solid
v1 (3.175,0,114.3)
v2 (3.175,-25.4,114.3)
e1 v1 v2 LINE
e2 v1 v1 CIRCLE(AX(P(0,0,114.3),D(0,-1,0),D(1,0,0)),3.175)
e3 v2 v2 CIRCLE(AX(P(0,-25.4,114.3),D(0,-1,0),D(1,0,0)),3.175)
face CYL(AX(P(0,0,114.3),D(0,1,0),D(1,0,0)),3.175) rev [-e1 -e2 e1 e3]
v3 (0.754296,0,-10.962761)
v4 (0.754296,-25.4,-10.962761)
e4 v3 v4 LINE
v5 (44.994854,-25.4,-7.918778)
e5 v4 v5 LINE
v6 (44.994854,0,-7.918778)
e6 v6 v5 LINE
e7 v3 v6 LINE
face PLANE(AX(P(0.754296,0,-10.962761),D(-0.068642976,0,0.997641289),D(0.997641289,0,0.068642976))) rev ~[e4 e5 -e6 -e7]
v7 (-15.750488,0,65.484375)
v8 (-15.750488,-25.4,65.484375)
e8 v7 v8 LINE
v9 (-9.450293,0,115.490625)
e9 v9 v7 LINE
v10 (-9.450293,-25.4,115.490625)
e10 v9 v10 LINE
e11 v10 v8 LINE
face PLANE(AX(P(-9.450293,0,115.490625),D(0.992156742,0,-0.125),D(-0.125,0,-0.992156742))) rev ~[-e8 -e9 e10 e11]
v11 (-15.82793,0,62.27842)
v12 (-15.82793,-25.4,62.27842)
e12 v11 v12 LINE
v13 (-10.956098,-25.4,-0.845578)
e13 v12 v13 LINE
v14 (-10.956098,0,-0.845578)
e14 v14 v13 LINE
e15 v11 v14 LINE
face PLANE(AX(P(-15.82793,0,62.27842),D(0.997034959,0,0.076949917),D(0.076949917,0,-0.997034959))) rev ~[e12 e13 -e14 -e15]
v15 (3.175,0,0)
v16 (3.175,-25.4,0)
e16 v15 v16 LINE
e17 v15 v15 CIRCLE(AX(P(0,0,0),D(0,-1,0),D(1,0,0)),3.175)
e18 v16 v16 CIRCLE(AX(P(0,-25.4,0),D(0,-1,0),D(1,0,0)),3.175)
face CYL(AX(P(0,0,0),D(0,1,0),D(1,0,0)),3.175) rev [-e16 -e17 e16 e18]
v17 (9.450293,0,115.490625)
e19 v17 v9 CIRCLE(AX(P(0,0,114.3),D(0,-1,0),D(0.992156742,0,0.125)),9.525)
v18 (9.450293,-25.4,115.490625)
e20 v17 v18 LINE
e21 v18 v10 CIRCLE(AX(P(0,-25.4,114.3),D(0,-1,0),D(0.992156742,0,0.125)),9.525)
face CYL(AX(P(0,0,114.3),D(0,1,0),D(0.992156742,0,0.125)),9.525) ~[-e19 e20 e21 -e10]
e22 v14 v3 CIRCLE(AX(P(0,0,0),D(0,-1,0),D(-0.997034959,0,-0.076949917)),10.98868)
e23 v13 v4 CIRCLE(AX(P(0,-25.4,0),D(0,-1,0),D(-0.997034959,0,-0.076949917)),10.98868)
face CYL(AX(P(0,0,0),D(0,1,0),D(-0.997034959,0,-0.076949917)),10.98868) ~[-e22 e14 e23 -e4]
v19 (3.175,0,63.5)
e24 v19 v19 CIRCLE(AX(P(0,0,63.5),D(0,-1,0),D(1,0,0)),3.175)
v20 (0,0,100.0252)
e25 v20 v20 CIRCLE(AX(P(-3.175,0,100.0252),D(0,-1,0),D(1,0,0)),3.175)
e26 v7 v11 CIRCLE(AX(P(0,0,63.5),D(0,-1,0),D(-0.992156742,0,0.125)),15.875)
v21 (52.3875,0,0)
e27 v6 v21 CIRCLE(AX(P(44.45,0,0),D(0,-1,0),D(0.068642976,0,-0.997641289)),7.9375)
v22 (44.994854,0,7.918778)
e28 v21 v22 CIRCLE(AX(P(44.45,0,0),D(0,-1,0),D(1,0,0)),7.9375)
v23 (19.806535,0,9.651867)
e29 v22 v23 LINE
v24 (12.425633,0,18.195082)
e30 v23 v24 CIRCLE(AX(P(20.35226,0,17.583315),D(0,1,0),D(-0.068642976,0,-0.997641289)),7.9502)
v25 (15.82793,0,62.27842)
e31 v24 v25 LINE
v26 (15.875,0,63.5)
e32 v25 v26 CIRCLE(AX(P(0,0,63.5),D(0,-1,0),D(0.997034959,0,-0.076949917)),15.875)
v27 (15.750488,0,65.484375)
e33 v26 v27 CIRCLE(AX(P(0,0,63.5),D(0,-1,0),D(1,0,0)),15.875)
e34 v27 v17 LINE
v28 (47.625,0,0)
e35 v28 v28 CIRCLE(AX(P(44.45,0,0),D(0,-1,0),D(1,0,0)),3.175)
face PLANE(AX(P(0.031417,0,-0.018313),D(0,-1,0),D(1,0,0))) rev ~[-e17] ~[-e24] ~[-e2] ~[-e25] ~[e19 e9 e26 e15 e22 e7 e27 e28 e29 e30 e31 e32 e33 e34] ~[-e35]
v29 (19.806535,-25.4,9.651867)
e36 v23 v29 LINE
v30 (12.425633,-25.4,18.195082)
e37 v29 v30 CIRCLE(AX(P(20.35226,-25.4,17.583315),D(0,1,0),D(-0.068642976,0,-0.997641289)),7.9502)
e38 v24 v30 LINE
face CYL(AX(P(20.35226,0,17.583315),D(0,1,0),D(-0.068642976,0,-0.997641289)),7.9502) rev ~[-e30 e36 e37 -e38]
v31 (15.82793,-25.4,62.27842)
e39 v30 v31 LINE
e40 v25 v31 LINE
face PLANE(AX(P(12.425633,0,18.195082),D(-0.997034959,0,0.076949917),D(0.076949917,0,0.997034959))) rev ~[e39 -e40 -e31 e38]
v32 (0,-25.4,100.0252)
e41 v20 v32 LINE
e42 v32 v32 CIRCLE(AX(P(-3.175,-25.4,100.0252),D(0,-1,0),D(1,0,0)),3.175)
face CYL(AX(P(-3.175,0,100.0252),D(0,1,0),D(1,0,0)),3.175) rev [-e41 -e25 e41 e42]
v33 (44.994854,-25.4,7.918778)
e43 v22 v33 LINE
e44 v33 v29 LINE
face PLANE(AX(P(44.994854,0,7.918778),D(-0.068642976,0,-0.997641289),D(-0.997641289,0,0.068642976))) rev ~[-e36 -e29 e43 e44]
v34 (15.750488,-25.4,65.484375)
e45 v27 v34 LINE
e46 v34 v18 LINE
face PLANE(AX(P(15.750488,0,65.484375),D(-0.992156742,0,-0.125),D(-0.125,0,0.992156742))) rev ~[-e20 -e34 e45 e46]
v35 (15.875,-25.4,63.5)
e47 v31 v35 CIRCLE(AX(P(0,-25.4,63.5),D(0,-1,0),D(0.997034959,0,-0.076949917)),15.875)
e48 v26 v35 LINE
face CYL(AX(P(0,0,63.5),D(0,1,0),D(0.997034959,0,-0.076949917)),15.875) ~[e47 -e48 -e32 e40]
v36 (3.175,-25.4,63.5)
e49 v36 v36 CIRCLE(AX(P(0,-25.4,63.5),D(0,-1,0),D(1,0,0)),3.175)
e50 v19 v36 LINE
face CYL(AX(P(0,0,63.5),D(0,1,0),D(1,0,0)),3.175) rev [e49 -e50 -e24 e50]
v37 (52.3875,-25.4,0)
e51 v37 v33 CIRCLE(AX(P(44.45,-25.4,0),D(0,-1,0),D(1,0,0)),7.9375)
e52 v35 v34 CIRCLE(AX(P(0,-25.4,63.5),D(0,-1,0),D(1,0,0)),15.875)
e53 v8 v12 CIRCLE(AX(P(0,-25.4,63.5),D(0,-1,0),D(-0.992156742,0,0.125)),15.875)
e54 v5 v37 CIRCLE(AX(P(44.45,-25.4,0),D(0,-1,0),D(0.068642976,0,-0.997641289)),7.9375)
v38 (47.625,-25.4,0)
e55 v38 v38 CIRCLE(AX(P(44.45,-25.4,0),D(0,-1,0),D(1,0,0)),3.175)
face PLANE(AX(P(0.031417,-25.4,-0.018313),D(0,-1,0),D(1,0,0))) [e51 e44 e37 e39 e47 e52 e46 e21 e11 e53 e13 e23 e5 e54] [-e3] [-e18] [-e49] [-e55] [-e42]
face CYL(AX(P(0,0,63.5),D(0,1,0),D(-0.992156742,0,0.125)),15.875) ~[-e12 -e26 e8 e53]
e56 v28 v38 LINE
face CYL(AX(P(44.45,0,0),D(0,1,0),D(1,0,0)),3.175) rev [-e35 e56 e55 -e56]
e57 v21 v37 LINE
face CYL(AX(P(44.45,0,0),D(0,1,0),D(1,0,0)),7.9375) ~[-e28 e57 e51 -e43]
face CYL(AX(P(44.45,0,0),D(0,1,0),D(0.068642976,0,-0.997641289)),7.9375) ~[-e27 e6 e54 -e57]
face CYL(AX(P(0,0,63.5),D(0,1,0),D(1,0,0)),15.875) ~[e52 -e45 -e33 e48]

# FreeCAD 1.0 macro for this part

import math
import FreeCAD as App
import Part
import Sketcher

V = App.Vector
Q = App.Units.Quantity

doc = App.newDocument("Part")
body = doc.addObject("PartDesign::Body", "Body")

# Sketch on XZ plane
sketch1 = body.newObject("Sketcher::SketchObject", "Sketch")
sketch1.AttachmentSupport = (doc.getObject("XZ_Plane"), [""])
sketch1.MapMode = "FlatFace"
sketch1.addGeometry([
    Part.LineSegment(V(45, 7.9, 0), V(19.8, 9.7, 0)),  # 0
    Part.ArcOfCircle(Part.Circle(V(20.4, 17.6, 0), V(0, 0, 1), 8), math.radians(176), math.radians(266)),  # 1
    Part.LineSegment(V(12.4, 18.2, 0), V(15.8, 62.3, 0)),  # 2
    Part.ArcOfCircle(Part.Circle(V(0, 63.5, 0), V(0, 0, 1), 15.9), math.radians(-4.41), math.radians(0)),  # 3
    Part.ArcOfCircle(Part.Circle(V(0, 63.5, 0), V(0, 0, 1), 15.9), math.radians(0), math.radians(7.18)),  # 4
    Part.LineSegment(V(15.8, 65.5, 0), V(9.5, 115.5, 0)),  # 5
    Part.ArcOfCircle(Part.Circle(V(0, 114.3, 0), V(0, 0, 1), 9.5), math.radians(7), math.radians(173)),  # 6
    Part.LineSegment(V(-9.5, 115.5, 0), V(-15.8, 65.5, 0)),  # 7
    Part.ArcOfCircle(Part.Circle(V(0, 63.5, 0), V(0, 0, 1), 15.9), math.radians(172.82), math.radians(184.41)),  # 8
    Part.LineSegment(V(-15.8, 62.3, 0), V(-11, -0.8, 0)),  # 9
    Part.ArcOfCircle(Part.Circle(V(0, 0, 0), V(0, 0, 1), 11), math.radians(-176), math.radians(-86)),  # 10
    Part.LineSegment(V(0.8, -11, 0), V(45, -7.9, 0)),  # 11
    Part.ArcOfCircle(Part.Circle(V(44.5, 0, 0), V(0, 0, 1), 7.9), math.radians(-86), math.radians(0)),  # 12
    Part.ArcOfCircle(Part.Circle(V(44.5, 0, 0), V(0, 0, 1), 7.9), math.radians(0), math.radians(86)),  # 13
    Part.Circle(V(0, 0, 0), V(0, 0, 1), 3.2),  # 14
    Part.Circle(V(44.5, 0, 0), V(0, 0, 1), 3.2),  # 15
    Part.Circle(V(0, 63.5, 0), V(0, 0, 1), 3.2),  # 16
    Part.Circle(V(-3.2, 100, 0), V(0, 0, 1), 3.2),  # 17
    Part.Circle(V(0, 114.3, 0), V(0, 0, 1), 3.2),  # 18
], False)
sketch1.addConstraint([
    Sketcher.Constraint("Tangent", 0, 2, 1, 2),
    Sketcher.Constraint("Tangent", 1, 1, 2, 1),
    Sketcher.Constraint("Tangent", 2, 2, 3, 1),
    Sketcher.Constraint("Tangent", 3, 2, 4, 1),
    Sketcher.Constraint("Tangent", 4, 2, 5, 1),
    Sketcher.Constraint("Tangent", 5, 2, 6, 1),
    Sketcher.Constraint("Tangent", 6, 2, 7, 1),
    Sketcher.Constraint("Tangent", 7, 2, 8, 1),
    Sketcher.Constraint("Tangent", 8, 2, 9, 1),
    Sketcher.Constraint("Tangent", 9, 2, 10, 1),
    Sketcher.Constraint("Tangent", 10, 2, 11, 1),
    Sketcher.Constraint("Tangent", 11, 2, 12, 1),
    Sketcher.Constraint("Tangent", 12, 2, 13, 1),
    Sketcher.Constraint("Tangent", 13, 2, 0, 1),
    Sketcher.Constraint("Coincident", 10, 3, -1, 1),
    Sketcher.Constraint("Coincident", 14, 3, -1, 1),
    Sketcher.Constraint("Coincident", 8, 3, 3, 3),
    Sketcher.Constraint("Coincident", 15, 3, 12, 3),
    Sketcher.Constraint("Coincident", 16, 3, 3, 3),
    Sketcher.Constraint("Coincident", 18, 3, 6, 3),
    Sketcher.Constraint("Equal", 3, 4),
    Sketcher.Constraint("Equal", 4, 8),
    Sketcher.Constraint("Equal", 12, 13),
    Sketcher.Constraint("Equal", 14, 15),
    Sketcher.Constraint("Equal", 15, 16),
    Sketcher.Constraint("Equal", 16, 17),
    Sketcher.Constraint("Equal", 17, 18),
    Sketcher.Constraint("Symmetric", 5, 2, 6, 2, -2),
    Sketcher.Constraint("Symmetric", 11, 2, 13, 2, -1),
    Sketcher.Constraint("PointOnObject", 12, 2, -1),
    Sketcher.Constraint("Horizontal", 16, 3, 3, 2),
    Sketcher.Constraint("Horizontal", 2, 2, 8, 2),
    Sketcher.Constraint("Diameter", 14, Q("0.25 in")),
    Sketcher.Constraint("Radius", 1, Q("0.313 in")),
    Sketcher.Constraint("Radius", 3, Q("0.625 in")),
    Sketcher.Constraint("Radius", 6, Q("0.375 in")),
    Sketcher.Constraint("Radius", 12, Q("0.3125 in")),
    Sketcher.Constraint("DistanceY", 3, 3, 6, 3, Q("2 in")),
    Sketcher.Constraint("DistanceY", -1, 1, 3, 3, Q("2.5 in")),
    Sketcher.Constraint("DistanceX", -1, 1, 12, 3, Q("1.75 in")),
    Sketcher.Constraint("DistanceX", 17, 3, -1, 1, Q("0.125 in")),
    Sketcher.Constraint("DistanceY", -1, 1, 17, 3, Q("3.938 in")),
    Sketcher.Constraint("Radius", 10, Q("10.98868 mm")),
])
pad1 = body.newObject("PartDesign::Pad", "Pad")
pad1.Profile = sketch1
pad1.Length = Q("1 in")

doc.recompute()
